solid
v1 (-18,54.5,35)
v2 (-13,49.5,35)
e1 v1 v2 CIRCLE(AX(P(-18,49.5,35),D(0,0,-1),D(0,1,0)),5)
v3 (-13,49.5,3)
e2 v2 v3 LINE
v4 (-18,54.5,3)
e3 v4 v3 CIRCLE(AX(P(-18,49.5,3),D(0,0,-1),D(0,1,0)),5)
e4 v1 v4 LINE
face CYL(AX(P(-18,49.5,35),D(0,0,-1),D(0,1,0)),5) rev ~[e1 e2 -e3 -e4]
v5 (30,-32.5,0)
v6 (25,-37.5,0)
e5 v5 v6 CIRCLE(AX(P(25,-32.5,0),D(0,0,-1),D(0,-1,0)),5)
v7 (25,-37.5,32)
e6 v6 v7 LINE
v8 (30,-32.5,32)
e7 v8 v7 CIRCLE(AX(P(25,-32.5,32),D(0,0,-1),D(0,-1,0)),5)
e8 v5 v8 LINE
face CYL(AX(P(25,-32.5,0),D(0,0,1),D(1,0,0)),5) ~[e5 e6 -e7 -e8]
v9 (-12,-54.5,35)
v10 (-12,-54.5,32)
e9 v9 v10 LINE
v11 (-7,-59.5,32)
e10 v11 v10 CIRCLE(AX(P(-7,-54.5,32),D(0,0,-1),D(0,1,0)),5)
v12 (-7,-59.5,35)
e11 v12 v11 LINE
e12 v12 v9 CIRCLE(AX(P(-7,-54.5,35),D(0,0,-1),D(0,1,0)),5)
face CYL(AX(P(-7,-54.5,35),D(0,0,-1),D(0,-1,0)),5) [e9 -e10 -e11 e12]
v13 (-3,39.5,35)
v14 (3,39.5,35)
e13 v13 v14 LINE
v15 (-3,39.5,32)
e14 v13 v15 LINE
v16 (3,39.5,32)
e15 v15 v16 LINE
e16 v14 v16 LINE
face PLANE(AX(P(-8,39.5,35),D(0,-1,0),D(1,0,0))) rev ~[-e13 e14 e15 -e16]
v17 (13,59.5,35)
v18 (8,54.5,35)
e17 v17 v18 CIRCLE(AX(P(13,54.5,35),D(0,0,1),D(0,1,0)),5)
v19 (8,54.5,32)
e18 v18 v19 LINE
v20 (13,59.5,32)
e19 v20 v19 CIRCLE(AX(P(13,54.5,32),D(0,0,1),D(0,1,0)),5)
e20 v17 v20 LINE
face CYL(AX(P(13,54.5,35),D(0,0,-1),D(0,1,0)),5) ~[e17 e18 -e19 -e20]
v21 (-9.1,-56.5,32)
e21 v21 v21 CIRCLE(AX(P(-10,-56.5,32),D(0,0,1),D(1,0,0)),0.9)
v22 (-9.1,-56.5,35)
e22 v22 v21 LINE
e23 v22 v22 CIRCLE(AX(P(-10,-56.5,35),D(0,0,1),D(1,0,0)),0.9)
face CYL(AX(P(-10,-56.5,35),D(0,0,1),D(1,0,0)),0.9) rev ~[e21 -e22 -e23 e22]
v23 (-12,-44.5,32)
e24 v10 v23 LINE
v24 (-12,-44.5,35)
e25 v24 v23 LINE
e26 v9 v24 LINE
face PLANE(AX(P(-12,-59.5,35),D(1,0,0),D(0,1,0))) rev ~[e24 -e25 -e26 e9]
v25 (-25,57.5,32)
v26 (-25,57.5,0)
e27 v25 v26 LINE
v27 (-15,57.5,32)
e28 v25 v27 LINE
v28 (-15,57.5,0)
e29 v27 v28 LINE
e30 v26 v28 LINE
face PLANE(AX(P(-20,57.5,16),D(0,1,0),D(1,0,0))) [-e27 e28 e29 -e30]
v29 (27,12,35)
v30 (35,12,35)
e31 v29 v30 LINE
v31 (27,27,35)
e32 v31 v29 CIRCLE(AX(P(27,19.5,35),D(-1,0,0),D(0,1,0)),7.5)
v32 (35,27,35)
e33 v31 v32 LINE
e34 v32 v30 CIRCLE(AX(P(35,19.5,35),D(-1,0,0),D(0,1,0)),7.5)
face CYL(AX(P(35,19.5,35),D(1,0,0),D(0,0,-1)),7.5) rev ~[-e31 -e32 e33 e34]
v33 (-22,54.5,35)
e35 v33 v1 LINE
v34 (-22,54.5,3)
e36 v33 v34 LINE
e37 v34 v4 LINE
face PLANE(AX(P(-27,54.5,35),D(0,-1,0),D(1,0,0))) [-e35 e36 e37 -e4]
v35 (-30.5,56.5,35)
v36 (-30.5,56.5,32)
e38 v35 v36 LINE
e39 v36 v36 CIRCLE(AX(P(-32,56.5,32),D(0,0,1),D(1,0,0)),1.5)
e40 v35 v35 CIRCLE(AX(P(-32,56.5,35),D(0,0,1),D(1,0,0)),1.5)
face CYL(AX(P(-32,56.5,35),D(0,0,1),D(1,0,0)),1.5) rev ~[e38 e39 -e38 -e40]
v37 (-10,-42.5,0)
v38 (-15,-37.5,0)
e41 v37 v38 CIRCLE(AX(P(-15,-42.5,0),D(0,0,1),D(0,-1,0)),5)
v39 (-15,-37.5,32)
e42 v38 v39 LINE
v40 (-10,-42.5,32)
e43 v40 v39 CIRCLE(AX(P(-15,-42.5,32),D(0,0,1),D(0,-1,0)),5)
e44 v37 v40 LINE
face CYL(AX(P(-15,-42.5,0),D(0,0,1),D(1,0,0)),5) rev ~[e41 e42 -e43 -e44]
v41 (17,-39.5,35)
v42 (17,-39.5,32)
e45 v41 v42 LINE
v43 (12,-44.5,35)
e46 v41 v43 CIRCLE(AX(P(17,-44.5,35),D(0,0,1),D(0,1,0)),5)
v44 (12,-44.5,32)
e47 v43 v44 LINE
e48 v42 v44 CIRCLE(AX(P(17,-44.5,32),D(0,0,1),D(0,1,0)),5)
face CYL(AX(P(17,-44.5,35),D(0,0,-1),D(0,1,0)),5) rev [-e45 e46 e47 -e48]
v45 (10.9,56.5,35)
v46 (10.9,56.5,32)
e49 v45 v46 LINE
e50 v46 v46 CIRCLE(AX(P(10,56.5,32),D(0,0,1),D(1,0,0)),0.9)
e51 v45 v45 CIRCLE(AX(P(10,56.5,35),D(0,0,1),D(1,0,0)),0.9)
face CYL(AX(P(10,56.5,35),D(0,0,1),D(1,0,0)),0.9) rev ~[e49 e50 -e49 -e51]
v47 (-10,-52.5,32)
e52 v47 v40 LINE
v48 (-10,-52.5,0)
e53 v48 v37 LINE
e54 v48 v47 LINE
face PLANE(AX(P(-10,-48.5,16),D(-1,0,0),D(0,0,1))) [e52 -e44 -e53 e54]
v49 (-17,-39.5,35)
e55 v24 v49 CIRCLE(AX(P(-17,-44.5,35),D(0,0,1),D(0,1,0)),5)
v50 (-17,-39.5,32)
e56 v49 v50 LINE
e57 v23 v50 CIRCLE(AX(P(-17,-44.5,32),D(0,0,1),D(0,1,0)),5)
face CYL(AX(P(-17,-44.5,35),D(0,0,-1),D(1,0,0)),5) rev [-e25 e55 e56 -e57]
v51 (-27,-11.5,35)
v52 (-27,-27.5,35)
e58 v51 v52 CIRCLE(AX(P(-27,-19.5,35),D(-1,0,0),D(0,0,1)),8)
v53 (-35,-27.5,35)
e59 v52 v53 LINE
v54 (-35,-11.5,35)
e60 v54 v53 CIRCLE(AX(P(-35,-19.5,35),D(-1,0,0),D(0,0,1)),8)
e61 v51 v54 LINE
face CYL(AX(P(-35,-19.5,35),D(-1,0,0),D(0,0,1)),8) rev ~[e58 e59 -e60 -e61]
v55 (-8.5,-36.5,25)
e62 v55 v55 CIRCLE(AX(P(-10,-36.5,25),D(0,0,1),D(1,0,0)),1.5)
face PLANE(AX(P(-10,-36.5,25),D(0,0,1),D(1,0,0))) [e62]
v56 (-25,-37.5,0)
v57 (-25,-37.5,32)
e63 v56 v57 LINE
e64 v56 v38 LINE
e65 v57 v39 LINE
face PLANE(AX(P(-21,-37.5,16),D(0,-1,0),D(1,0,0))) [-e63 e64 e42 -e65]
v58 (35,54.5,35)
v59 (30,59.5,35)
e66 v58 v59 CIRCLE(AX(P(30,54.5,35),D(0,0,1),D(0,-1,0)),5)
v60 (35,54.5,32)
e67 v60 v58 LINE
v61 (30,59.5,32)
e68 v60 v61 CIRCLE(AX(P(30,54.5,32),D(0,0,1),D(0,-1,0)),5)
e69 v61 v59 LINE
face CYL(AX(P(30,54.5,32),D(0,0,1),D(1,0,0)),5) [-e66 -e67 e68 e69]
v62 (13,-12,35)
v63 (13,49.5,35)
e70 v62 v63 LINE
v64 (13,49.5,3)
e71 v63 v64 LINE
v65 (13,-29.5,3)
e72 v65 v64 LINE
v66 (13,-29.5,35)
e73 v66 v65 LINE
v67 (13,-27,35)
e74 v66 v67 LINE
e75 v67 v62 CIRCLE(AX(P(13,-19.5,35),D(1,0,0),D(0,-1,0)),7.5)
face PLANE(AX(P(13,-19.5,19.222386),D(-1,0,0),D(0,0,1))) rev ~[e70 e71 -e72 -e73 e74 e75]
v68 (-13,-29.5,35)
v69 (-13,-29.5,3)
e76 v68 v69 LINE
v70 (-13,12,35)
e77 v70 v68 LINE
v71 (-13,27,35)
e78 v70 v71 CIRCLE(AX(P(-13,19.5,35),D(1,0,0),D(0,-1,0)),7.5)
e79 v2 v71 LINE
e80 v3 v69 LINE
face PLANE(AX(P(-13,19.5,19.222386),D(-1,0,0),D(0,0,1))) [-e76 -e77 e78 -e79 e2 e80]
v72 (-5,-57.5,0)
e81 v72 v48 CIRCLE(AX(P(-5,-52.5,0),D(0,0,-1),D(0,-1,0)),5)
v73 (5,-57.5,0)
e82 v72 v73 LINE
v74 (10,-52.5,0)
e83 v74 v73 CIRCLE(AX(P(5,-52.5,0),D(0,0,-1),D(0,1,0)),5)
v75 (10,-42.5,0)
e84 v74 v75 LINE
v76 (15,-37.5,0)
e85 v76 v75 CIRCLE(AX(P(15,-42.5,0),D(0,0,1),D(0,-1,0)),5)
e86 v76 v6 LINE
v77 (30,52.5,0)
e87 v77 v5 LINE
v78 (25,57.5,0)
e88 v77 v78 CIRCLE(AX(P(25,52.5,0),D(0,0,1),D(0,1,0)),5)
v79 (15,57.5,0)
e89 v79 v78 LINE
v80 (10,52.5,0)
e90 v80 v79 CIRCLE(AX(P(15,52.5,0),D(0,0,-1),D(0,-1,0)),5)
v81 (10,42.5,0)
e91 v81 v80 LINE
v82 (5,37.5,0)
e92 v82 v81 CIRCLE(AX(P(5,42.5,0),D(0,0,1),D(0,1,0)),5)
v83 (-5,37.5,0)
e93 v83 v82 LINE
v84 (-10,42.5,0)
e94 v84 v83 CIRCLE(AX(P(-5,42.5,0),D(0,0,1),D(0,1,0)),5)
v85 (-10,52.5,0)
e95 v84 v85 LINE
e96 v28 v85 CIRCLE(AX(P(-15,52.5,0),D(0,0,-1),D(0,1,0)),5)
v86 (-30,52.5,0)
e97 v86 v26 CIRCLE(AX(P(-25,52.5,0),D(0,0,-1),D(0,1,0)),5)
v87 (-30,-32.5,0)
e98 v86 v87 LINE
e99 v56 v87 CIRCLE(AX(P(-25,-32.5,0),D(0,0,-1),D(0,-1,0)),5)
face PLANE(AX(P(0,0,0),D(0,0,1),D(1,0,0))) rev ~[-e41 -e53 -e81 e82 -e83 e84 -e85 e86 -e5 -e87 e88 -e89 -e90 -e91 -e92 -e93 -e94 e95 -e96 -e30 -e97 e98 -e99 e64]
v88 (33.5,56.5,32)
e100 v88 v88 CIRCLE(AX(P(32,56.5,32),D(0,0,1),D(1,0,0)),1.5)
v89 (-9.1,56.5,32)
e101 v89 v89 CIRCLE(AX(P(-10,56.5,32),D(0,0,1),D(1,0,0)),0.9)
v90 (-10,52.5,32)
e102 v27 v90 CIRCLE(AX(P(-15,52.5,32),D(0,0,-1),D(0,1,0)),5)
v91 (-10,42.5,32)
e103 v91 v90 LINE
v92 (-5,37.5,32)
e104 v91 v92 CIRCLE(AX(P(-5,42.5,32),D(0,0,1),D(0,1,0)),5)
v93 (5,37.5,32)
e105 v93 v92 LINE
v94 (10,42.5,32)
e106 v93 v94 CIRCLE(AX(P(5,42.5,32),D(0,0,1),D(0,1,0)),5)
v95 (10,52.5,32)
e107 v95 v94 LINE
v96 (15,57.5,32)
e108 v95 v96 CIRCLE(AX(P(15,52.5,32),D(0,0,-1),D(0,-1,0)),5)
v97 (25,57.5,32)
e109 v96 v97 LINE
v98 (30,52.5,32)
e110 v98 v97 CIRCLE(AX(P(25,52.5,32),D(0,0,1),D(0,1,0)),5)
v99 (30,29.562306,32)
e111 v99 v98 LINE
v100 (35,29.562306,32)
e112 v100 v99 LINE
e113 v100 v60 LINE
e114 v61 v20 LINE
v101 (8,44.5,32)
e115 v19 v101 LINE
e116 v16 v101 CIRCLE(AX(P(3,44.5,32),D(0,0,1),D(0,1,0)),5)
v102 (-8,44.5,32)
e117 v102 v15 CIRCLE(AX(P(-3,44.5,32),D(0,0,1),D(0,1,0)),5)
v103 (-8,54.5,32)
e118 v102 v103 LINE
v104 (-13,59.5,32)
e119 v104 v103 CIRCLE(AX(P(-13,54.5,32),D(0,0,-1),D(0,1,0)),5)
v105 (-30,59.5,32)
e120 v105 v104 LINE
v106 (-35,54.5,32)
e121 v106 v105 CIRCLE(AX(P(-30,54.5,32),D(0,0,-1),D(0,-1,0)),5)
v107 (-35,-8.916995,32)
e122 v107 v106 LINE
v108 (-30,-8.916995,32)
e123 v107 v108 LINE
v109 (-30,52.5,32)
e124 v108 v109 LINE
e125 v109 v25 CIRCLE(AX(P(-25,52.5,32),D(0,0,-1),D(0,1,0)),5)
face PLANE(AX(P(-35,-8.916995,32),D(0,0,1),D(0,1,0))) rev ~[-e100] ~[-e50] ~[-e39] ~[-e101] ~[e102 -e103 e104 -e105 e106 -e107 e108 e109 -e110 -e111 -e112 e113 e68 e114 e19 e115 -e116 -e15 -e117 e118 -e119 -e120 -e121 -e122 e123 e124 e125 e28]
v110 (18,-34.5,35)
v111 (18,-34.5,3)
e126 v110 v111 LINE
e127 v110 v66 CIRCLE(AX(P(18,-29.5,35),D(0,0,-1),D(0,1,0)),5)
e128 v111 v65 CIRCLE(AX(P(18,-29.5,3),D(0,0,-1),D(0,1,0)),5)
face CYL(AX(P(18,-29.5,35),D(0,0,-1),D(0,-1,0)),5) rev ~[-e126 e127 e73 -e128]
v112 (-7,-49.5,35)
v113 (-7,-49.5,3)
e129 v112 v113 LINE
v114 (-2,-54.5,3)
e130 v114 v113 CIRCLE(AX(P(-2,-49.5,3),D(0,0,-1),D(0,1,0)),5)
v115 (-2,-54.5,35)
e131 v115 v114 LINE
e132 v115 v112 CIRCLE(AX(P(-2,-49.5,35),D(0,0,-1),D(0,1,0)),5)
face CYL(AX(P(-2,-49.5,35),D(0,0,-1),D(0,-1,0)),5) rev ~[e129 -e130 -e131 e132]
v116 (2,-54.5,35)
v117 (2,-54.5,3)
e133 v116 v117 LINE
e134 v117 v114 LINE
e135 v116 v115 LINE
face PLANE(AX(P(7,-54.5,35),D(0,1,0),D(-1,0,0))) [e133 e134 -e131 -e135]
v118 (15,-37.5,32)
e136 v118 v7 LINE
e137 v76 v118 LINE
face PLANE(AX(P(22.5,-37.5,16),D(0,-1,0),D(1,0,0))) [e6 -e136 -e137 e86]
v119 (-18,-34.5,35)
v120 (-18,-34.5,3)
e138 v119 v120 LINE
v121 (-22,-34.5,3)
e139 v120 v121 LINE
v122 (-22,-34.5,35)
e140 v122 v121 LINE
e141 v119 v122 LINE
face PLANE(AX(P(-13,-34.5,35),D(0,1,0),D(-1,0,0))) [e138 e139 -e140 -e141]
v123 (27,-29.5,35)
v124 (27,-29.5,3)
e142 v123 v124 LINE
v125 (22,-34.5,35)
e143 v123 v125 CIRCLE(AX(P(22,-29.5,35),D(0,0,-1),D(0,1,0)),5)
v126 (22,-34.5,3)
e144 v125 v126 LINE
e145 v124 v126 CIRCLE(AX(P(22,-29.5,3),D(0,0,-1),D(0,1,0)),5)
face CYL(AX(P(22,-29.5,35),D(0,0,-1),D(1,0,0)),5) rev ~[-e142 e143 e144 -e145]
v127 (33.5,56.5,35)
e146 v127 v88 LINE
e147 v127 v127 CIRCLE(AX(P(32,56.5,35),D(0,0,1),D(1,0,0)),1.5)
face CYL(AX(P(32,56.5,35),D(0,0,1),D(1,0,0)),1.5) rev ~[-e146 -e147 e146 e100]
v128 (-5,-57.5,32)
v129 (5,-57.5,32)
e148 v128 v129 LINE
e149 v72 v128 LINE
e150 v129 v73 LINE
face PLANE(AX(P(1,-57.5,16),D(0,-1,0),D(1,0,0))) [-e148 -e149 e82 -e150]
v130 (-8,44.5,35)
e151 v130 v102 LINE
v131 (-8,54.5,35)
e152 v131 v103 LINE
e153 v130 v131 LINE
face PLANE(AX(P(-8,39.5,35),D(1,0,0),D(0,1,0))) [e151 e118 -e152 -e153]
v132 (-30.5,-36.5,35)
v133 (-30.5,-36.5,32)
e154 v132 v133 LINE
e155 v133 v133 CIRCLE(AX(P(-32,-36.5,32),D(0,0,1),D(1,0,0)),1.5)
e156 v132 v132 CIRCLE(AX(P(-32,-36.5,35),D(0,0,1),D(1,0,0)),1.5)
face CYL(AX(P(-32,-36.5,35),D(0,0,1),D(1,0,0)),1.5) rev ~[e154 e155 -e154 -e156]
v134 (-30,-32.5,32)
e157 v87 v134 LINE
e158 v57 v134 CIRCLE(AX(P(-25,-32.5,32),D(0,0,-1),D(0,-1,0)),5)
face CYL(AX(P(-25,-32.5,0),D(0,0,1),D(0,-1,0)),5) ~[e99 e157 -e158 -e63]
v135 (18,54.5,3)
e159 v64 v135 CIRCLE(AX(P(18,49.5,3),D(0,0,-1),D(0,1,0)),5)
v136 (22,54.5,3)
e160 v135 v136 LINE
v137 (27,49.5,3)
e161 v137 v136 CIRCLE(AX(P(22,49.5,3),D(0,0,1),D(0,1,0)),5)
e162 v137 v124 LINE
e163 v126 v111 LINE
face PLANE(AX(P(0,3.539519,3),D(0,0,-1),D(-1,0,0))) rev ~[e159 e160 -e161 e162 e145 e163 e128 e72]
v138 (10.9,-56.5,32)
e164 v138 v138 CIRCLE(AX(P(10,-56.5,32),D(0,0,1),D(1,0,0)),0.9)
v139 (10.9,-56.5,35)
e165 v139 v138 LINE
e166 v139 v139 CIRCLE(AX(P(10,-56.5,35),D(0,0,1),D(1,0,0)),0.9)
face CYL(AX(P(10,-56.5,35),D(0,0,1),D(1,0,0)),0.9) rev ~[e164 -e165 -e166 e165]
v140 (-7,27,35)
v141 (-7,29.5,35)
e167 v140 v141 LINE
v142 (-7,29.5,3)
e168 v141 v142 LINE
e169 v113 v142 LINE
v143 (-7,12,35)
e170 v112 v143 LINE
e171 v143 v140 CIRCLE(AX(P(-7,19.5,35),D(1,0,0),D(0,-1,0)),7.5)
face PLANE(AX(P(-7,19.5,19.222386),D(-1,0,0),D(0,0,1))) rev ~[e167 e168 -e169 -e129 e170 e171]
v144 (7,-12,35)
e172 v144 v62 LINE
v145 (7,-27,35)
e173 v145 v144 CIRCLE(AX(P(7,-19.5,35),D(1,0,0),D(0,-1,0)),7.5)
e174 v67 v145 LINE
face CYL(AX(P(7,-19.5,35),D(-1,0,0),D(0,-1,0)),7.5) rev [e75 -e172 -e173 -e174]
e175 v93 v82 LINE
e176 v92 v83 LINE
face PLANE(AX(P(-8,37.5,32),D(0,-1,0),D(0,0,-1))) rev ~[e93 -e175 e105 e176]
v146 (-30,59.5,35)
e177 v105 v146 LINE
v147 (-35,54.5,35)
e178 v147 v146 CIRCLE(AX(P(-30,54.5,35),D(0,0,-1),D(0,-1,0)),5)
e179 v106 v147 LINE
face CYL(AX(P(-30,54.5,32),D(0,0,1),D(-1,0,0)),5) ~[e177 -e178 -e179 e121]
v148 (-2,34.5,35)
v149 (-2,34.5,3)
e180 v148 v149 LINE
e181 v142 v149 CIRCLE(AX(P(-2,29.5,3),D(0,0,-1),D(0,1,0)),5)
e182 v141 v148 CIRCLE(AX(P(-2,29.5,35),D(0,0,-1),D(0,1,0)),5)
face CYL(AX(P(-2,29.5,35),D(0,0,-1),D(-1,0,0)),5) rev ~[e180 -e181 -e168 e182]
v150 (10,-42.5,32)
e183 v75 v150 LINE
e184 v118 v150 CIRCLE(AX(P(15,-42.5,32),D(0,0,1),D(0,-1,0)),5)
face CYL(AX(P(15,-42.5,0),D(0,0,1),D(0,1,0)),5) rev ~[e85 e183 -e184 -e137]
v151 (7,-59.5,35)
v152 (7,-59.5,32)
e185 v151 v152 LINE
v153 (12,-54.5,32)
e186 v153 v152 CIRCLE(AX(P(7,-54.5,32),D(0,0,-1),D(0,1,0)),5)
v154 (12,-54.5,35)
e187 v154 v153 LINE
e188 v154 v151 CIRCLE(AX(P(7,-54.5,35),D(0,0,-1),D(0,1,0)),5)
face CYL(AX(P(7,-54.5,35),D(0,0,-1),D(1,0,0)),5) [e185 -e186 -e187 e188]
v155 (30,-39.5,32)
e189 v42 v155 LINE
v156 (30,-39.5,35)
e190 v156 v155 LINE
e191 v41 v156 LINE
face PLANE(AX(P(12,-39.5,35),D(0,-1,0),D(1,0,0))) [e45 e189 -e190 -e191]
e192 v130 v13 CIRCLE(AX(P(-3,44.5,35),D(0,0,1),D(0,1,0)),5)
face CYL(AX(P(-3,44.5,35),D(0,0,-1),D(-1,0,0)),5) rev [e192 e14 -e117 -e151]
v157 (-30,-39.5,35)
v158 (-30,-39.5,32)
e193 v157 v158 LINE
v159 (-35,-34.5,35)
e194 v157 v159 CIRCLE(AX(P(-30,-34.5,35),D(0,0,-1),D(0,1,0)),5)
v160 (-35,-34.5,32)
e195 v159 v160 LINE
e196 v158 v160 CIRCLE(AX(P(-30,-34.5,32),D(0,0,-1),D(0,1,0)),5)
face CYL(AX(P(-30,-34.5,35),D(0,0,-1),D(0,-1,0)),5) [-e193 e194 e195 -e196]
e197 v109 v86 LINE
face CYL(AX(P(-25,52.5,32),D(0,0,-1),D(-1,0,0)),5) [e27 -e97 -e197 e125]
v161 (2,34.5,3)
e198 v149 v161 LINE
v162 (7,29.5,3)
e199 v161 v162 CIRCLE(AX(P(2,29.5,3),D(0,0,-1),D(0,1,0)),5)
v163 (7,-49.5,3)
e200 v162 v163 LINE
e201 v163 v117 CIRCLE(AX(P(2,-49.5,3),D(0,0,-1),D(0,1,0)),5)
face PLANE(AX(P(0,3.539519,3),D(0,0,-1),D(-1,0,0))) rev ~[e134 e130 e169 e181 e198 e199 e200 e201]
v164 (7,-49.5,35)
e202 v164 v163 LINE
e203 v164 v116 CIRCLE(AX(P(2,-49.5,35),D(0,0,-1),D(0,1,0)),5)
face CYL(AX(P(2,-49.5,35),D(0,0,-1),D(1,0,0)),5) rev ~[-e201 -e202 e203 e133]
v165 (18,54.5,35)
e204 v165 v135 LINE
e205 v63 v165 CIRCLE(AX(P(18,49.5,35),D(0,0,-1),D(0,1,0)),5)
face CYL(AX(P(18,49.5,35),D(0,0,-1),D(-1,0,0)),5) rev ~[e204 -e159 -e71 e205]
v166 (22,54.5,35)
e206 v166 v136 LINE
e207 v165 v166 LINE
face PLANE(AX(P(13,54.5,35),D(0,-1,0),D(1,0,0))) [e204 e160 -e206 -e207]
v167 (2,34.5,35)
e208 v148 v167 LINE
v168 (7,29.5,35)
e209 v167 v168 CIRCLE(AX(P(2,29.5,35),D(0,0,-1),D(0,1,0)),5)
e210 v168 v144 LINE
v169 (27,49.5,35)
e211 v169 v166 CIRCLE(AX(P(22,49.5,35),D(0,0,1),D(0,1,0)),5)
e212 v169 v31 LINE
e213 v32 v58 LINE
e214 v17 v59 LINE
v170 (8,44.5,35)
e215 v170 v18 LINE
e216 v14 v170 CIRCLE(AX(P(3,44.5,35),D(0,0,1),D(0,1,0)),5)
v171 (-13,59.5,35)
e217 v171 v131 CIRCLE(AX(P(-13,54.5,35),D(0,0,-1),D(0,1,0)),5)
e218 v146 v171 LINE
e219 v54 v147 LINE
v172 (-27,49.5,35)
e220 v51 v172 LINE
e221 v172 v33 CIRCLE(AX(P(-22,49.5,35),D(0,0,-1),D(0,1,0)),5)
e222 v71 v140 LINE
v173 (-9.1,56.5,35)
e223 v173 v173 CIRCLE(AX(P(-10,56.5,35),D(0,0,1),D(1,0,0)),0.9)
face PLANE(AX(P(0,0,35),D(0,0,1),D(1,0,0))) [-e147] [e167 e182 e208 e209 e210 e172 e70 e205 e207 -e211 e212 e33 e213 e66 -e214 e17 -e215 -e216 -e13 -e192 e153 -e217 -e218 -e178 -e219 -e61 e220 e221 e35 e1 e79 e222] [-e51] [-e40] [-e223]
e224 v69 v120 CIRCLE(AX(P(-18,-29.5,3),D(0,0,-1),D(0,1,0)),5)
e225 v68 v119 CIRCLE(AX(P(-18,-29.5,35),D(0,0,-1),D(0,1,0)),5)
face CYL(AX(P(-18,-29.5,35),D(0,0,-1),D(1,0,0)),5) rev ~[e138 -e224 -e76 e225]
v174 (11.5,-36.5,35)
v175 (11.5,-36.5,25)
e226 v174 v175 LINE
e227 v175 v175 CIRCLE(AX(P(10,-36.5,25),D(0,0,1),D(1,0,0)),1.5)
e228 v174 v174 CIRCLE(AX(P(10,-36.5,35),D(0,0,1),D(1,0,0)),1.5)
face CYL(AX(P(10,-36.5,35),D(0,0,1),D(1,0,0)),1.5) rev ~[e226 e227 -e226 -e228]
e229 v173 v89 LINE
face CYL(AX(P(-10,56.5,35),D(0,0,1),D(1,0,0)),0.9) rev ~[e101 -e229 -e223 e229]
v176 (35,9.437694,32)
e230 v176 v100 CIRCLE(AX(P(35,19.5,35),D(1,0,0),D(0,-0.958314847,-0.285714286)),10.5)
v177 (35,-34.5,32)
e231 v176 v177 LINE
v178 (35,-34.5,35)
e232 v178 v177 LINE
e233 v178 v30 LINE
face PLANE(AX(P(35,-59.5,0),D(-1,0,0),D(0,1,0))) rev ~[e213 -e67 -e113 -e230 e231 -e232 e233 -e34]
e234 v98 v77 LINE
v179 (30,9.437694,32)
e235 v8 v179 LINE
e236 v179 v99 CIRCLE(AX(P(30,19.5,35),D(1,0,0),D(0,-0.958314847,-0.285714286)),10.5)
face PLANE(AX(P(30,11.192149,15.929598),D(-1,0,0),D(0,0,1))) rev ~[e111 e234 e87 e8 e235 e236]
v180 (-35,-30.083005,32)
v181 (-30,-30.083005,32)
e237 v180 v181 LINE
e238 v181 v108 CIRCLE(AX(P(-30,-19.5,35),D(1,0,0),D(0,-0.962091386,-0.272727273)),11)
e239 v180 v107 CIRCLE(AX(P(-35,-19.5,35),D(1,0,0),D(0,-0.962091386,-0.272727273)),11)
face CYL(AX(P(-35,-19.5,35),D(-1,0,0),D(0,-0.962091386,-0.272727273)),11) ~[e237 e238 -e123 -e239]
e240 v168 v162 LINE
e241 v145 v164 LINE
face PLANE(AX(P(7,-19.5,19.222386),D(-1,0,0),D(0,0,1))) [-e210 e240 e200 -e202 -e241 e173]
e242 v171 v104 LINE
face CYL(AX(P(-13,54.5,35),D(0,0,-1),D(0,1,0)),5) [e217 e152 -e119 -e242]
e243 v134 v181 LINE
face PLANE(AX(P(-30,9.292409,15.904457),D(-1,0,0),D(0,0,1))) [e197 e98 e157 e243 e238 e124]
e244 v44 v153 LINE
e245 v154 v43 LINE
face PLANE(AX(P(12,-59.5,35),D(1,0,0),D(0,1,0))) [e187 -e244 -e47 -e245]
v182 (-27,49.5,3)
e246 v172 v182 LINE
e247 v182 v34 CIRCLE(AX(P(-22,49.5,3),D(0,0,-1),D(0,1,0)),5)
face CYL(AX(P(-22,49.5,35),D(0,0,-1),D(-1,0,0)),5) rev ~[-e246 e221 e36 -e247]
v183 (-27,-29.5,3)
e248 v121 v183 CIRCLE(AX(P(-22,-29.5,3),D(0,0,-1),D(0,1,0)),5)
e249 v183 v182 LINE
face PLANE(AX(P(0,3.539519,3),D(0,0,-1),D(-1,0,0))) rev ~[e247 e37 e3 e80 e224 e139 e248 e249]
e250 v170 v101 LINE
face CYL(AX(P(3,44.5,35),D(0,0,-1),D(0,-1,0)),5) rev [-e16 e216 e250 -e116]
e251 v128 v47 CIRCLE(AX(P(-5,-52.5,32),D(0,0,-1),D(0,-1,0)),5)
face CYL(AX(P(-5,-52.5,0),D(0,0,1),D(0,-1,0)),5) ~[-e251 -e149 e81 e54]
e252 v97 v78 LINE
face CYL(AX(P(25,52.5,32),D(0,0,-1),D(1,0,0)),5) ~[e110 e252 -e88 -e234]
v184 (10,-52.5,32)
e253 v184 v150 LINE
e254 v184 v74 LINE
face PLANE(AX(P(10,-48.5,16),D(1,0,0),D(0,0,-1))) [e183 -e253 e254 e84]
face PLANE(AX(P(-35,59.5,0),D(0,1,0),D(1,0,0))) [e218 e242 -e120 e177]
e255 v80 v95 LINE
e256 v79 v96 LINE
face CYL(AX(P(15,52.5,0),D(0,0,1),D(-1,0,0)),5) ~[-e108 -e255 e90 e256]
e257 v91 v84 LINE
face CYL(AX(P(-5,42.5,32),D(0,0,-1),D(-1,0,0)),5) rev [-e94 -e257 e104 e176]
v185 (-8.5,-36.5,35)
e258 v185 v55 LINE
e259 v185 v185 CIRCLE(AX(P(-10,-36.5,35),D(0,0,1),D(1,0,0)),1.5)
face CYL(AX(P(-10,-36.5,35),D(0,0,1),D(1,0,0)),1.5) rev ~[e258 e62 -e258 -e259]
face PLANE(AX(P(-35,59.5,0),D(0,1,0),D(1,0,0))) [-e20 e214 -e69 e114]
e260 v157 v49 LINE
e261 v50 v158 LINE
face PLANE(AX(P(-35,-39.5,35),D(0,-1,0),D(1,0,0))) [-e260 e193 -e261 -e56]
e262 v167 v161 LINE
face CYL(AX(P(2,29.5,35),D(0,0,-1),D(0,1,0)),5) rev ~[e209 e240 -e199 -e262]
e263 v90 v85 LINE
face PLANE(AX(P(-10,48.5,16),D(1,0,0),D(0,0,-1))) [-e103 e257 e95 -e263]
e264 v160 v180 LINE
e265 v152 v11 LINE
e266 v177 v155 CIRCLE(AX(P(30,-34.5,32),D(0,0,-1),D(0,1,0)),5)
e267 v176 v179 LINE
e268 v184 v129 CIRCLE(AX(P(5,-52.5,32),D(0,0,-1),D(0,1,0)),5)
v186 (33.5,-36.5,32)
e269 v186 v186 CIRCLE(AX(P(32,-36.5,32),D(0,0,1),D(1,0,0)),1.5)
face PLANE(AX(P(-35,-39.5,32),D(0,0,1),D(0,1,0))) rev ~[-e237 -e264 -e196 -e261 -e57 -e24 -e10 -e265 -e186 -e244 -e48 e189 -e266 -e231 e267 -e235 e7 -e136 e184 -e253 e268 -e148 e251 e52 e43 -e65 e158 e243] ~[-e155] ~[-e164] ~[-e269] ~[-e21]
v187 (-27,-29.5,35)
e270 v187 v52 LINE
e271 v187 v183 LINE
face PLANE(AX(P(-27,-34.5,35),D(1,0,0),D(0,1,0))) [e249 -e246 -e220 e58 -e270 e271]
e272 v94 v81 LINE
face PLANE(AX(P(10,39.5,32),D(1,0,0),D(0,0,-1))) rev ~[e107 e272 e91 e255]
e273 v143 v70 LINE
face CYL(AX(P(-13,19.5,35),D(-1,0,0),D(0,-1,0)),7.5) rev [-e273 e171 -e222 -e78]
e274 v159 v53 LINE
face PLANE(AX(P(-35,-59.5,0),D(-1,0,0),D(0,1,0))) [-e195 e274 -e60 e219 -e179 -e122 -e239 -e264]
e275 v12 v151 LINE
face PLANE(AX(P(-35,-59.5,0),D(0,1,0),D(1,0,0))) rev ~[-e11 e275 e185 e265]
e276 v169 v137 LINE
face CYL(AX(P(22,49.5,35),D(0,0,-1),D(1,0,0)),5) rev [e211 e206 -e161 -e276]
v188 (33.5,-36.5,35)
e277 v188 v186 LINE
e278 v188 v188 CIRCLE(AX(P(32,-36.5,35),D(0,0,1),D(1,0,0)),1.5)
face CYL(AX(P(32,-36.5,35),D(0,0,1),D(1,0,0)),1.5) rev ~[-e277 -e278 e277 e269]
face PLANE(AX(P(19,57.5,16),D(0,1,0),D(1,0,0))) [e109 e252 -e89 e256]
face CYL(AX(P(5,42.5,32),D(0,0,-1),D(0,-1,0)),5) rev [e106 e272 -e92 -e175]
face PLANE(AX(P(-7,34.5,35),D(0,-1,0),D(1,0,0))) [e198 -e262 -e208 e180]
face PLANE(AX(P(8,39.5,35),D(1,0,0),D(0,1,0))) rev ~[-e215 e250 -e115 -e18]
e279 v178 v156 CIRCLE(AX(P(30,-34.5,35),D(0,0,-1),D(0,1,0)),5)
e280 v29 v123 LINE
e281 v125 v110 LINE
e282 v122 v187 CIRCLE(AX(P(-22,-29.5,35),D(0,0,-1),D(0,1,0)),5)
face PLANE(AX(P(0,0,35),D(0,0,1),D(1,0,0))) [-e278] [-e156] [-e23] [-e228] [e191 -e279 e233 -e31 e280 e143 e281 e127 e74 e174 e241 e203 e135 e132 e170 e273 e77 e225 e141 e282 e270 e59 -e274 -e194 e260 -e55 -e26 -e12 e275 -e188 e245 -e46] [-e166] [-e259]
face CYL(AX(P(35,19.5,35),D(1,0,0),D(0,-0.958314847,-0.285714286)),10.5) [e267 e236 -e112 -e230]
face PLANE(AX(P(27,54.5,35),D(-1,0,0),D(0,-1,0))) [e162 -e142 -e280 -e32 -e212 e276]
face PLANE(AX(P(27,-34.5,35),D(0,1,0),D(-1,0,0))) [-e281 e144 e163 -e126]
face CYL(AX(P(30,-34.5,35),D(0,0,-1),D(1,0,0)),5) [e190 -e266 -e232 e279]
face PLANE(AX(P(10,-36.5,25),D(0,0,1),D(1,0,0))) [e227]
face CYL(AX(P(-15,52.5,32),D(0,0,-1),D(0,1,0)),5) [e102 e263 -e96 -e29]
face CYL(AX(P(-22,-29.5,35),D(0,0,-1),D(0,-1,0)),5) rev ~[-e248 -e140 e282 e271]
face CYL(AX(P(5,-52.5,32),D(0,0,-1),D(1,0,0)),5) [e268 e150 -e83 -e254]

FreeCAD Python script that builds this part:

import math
import FreeCAD as App
import Part
import Sketcher
from FreeCAD import Vector
Q = App.Units.Quantity


def edges_at(feature, points):
    """Names of the edges that pass closest to the given points."""
    edges = feature.Shape.Edges
    near = lambda p: min(range(len(edges)), key=lambda i: edges[i].distToShape(Part.Vertex(*p))[0])
    return sorted({f"Edge{near(p) + 1}" for p in points})


def add_polygon(sketch, points):
    """Adds a closed chain of lines whose ends are joined by coincident constraints."""
    first, n = sketch.GeometryCount, len(points)
    for a, b in zip(points, points[1:] + points[:1]):
        sketch.addGeometry(Part.LineSegment(App.Vector(*a, 0), App.Vector(*b, 0)), False)
    for i in range(n):
        sketch.addConstraint(Sketcher.Constraint("Coincident", first + i, 2, first + (i + 1) % n, 1))

doc = App.newDocument("Part")
body = doc.addObject("PartDesign::Body", "Body")

# Sketch on XY plane
sketch1 = body.newObject("Sketcher::SketchObject", "Sketch")
sketch1.AttachmentSupport = (doc.getObject("XY_Plane"), [""])
sketch1.MapMode = "FlatFace"
add_polygon(sketch1, [(-35, 59.5), (-35, -59.5), (35, -59.5), (35, 59.5)])  # lines 0-3
sketch1.addConstraint([
    Sketcher.Constraint("Vertical", 0),
    Sketcher.Constraint("Horizontal", 1),
    Sketcher.Constraint("Vertical", 2),
    Sketcher.Constraint("Horizontal", 3),
    Sketcher.Constraint("Symmetric", 0, 2, 2, 2, -1, 1),
    Sketcher.Constraint("DistanceX", 1, 1, 1, 2, Q("70 mm")),
    Sketcher.Constraint("DistanceY", 0, 2, 0, 1, Q("119 mm")),
])
pad1 = body.newObject("PartDesign::Pad", "Pad")
pad1.Profile = sketch1
pad1.Length = 35

# Sketch on YZ plane
sketch2 = body.newObject("Sketcher::SketchObject", "Sketch001")
sketch2.AttachmentSupport = (doc.getObject("YZ_Plane"), [""])
sketch2.MapMode = "FlatFace"
sketch2.AttachmentOffset = App.Placement(Vector(0, 0, -35), App.Rotation())
sketch2.addGeometry(Part.Circle(Vector(-19.5, 35, 0), Vector(0, 0, 1), 8), False)
sketch2.addConstraint([
    Sketcher.Constraint("Diameter", 0, Q("16 mm")),
    Sketcher.Constraint("DistanceY", -1, 1, 0, 3, Q("35 mm")),
    Sketcher.Constraint("DistanceX", 0, 3, -1, 1, Q("19.5 mm")),
])
pocket1 = body.newObject("PartDesign::Pocket", "Pocket")
pocket1.Profile = sketch2
pocket1.Length = 8
pocket1.Reversed = True

# Sketch on XY plane
sketch3 = body.newObject("Sketcher::SketchObject", "Sketch002")
sketch3.AttachmentSupport = (doc.getObject("XY_Plane"), [""])
sketch3.MapMode = "FlatFace"
sketch3.AttachmentOffset = App.Placement(Vector(0, 0, 35), App.Rotation())
add_polygon(sketch3, [(-13, 54.5), (-27, 54.5), (-27, -34.5), (-13, -34.5), (-13, 12), (-7, 12), (-7, -54.5), (7, -54.5), (7, -27), (13, -27), (13, -34.5), (27, -34.5), (27, 54.5), (13, 54.5), (13, -12), (7, -12), (7, 34.5), (-7, 34.5), (-7, 27), (-13, 27)])  # lines 0-19
sketch3.addConstraint([
    Sketcher.Constraint("Horizontal", 0),
    Sketcher.Constraint("Vertical", 1),
    Sketcher.Constraint("Horizontal", 2),
    Sketcher.Constraint("Vertical", 3),
    Sketcher.Constraint("Horizontal", 4),
    Sketcher.Constraint("Vertical", 5),
    Sketcher.Constraint("Horizontal", 6),
    Sketcher.Constraint("Vertical", 7),
    Sketcher.Constraint("Horizontal", 8),
    Sketcher.Constraint("Vertical", 9),
    Sketcher.Constraint("Horizontal", 10),
    Sketcher.Constraint("Vertical", 11),
    Sketcher.Constraint("Horizontal", 12),
    Sketcher.Constraint("Vertical", 13),
    Sketcher.Constraint("Horizontal", 14),
    Sketcher.Constraint("Vertical", 15),
    Sketcher.Constraint("Horizontal", 16),
    Sketcher.Constraint("Vertical", 17),
    Sketcher.Constraint("Horizontal", 18),
    Sketcher.Constraint("Vertical", 19),
    Sketcher.Constraint("Symmetric", 3, 2, 13, 2, -1, 1),
    Sketcher.Constraint("Symmetric", 7, 2, 17, 2, -1, 1),
    Sketcher.Constraint("Symmetric", 2, 2, 9, 2, -2),
    Sketcher.Constraint("Symmetric", 0, 2, 11, 2, -2),
    Sketcher.Constraint("Vertical", 7, 2, 14, 2),
    Sketcher.Constraint("Vertical", 5, 2, 16, 2),
    Sketcher.Constraint("Vertical", 3, 2, 18, 2),
    Sketcher.Constraint("Equal", 2, 6),
    Sketcher.Constraint("Equal", 5, 13),
    Sketcher.Constraint("Equal", 3, 15),
    Sketcher.Constraint("DistanceX", 0, 2, 0, 1, Q("14 mm")),
    Sketcher.Constraint("DistanceX", 4, 1, 4, 2, Q("6 mm")),
    Sketcher.Constraint("DistanceY", 1, 2, 1, 1, Q("89 mm")),
    Sketcher.Constraint("DistanceY", 3, 1, 3, 2, Q("46.5 mm")),
    Sketcher.Constraint("DistanceY", 5, 2, 5, 1, Q("66.5 mm")),
    Sketcher.Constraint("DistanceY", 7, 1, 7, 2, Q("27.5 mm")),
])
pocket2 = body.newObject("PartDesign::Pocket", "Pocket001")
pocket2.Profile = sketch3
pocket2.Length = 32

# Sketch on YZ plane
sketch4 = body.newObject("Sketcher::SketchObject", "Sketch003")
sketch4.AttachmentSupport = (doc.getObject("YZ_Plane"), [""])
sketch4.MapMode = "FlatFace"
sketch4.AttachmentOffset = App.Placement(Vector(0, 0, 35), App.Rotation())
sketch4.addGeometry(Part.Circle(Vector(19.5, 35, 0), Vector(0, 0, 1), 7.5), False)
sketch4.addConstraint([
    Sketcher.Constraint("Diameter", 0, Q("15 mm")),
    Sketcher.Constraint("DistanceY", -1, 1, 0, 3, Q("35 mm")),
    Sketcher.Constraint("DistanceX", -1, 1, 0, 3, Q("19.5 mm")),
])
pocket3 = body.newObject("PartDesign::Pocket", "Pocket002")
pocket3.Profile = sketch4
pocket3.Length = 8

# Sketch on XY plane
sketch5 = body.newObject("Sketcher::SketchObject", "Sketch004")
sketch5.AttachmentSupport = (doc.getObject("XY_Plane"), [""])
sketch5.MapMode = "FlatFace"
sketch5.AttachmentOffset = App.Placement(Vector(0, 0, 35), App.Rotation())
add_polygon(sketch5, [(-8, 59.5), (-8, 39.5), (8, 39.5), (8, 59.5)])  # lines 0-3
add_polygon(sketch5, [(-35, -39.5), (-35, -59.5), (-12, -59.5), (-12, -39.5)])  # lines 4-7
add_polygon(sketch5, [(12, -39.5), (12, -59.5), (35, -59.5), (35, -39.5)])  # lines 8-11
sketch5.addConstraint([
    Sketcher.Constraint("Vertical", 0),
    Sketcher.Constraint("Horizontal", 1),
    Sketcher.Constraint("Vertical", 2),
    Sketcher.Constraint("Horizontal", 3),
    Sketcher.Constraint("Vertical", 4),
    Sketcher.Constraint("Horizontal", 5),
    Sketcher.Constraint("Vertical", 6),
    Sketcher.Constraint("Horizontal", 7),
    Sketcher.Constraint("Vertical", 8),
    Sketcher.Constraint("Horizontal", 9),
    Sketcher.Constraint("Vertical", 10),
    Sketcher.Constraint("Horizontal", 11),
    Sketcher.Constraint("Symmetric", 5, 2, 8, 2, -2),
    Sketcher.Constraint("Symmetric", 7, 2, 10, 2, -2),
    Sketcher.Constraint("Equal", 2, 4),
    Sketcher.Constraint("DistanceX", 1, 1, 1, 2, Q("16 mm")),
    Sketcher.Constraint("DistanceX", 5, 1, 5, 2, Q("23 mm")),
    Sketcher.Constraint("DistanceY", 0, 2, 0, 1, Q("20 mm")),
    Sketcher.Constraint("DistanceX", 0, 2, -1, 1, Q("8 mm")),
    Sketcher.Constraint("DistanceX", 4, 2, -1, 1, Q("35 mm")),
    Sketcher.Constraint("DistanceY", 4, 2, 0, 2, Q("99 mm")),
    Sketcher.Constraint("DistanceY", -1, 1, 0, 2, Q("39.5 mm")),
])
pocket4 = body.newObject("PartDesign::Pocket", "Pocket003")
pocket4.Profile = sketch5
pocket4.Type = "ThroughAll"

# Sketch on YZ plane
sketch6 = body.newObject("Sketcher::SketchObject", "Sketch005")
sketch6.AttachmentSupport = (doc.getObject("YZ_Plane"), [""])
sketch6.MapMode = "FlatFace"
sketch6.AttachmentOffset = App.Placement(Vector(0, 0, -35), App.Rotation())
sketch6.addGeometry([
    Part.LineSegment(Vector(59.5, 32, 0), Vector(59.5, 0, 0)),  # 0
    Part.LineSegment(Vector(59.5, 0, 0), Vector(-39.5, 0, 0)),  # 1
    Part.LineSegment(Vector(-39.5, 0, 0), Vector(-39.5, 32, 0)),  # 2
    Part.LineSegment(Vector(-39.5, 32, 0), Vector(-30.083005, 32, 0)),  # 3
    Part.ArcOfCircle(Part.Circle(Vector(-19.5, 35, 0), Vector(0, 0, 1), 11), math.radians(-164.17338), math.radians(-15.82662)),  # 4
    Part.LineSegment(Vector(-8.916995, 32, 0), Vector(59.5, 32, 0)),  # 5
], False)
sketch6.addConstraint([
    Sketcher.Constraint("Coincident", 0, 2, 1, 1),
    Sketcher.Constraint("Coincident", 1, 2, 2, 1),
    Sketcher.Constraint("Coincident", 2, 2, 3, 1),
    Sketcher.Constraint("Coincident", 3, 2, 4, 1),
    Sketcher.Constraint("Coincident", 4, 2, 5, 1),
    Sketcher.Constraint("Coincident", 5, 2, 0, 1),
    Sketcher.Constraint("Vertical", 0),
    Sketcher.Constraint("Horizontal", 1),
    Sketcher.Constraint("Vertical", 2),
    Sketcher.Constraint("Horizontal", 3),
    Sketcher.Constraint("Horizontal", 5),
    Sketcher.Constraint("PointOnObject", 0, 2, -1),
    Sketcher.Constraint("Horizontal", 3, 2, 4, 2),
    Sketcher.Constraint("Radius", 4, Q("11 mm")),
    Sketcher.Constraint("DistanceX", 1, 2, 1, 1, Q("99 mm")),
    Sketcher.Constraint("DistanceY", 0, 2, 0, 1, Q("32 mm")),
    Sketcher.Constraint("DistanceY", -1, 1, 4, 3, Q("35 mm")),
    Sketcher.Constraint("DistanceX", 4, 3, 0, 2, Q("79 mm")),
    Sketcher.Constraint("DistanceX", 4, 3, -1, 1, Q("19.5 mm")),
])
pocket5 = body.newObject("PartDesign::Pocket", "Pocket004")
pocket5.Profile = sketch6
pocket5.Length = 5
pocket5.Reversed = True

# Sketch on XZ plane
sketch7 = body.newObject("Sketcher::SketchObject", "Sketch006")
sketch7.AttachmentSupport = (doc.getObject("XZ_Plane"), [""])
sketch7.MapMode = "FlatFace"
sketch7.AttachmentOffset = App.Placement(Vector(0, 0, 39.5), App.Rotation())
add_polygon(sketch7, [(-30, 32), (-30, 0), (-12, 0), (-12, 32)])  # lines 0-3
sketch7.addConstraint([
    Sketcher.Constraint("Vertical", 0),
    Sketcher.Constraint("Horizontal", 1),
    Sketcher.Constraint("Vertical", 2),
    Sketcher.Constraint("Horizontal", 3),
    Sketcher.Constraint("PointOnObject", 0, 2, -1),
    Sketcher.Constraint("DistanceX", 1, 1, 1, 2, Q("18 mm")),
    Sketcher.Constraint("DistanceY", 0, 2, 0, 1, Q("32 mm")),
    Sketcher.Constraint("DistanceX", 0, 2, -1, 1, Q("30 mm")),
])
pocket6 = body.newObject("PartDesign::Pocket", "Pocket005")
pocket6.Profile = sketch7
pocket6.Length = 2

# Sketch on YZ plane
sketch8 = body.newObject("Sketcher::SketchObject", "Sketch007")
sketch8.AttachmentSupport = (doc.getObject("YZ_Plane"), [""])
sketch8.MapMode = "FlatFace"
sketch8.AttachmentOffset = App.Placement(Vector(0, 0, -12), App.Rotation())
add_polygon(sketch8, [(-37.5, 0), (-59.5, 0), (-59.5, 32), (-37.5, 32)])  # lines 0-3
sketch8.addConstraint([
    Sketcher.Constraint("Horizontal", 0),
    Sketcher.Constraint("Vertical", 1),
    Sketcher.Constraint("Horizontal", 2),
    Sketcher.Constraint("Vertical", 3),
    Sketcher.Constraint("PointOnObject", 0, 2, -1),
    Sketcher.Constraint("DistanceX", 0, 2, 0, 1, Q("22 mm")),
    Sketcher.Constraint("DistanceY", 1, 1, 1, 2, Q("32 mm")),
    Sketcher.Constraint("DistanceX", 0, 2, -1, 1, Q("59.5 mm")),
])
pocket7 = body.newObject("PartDesign::Pocket", "Pocket006")
pocket7.Profile = sketch8
pocket7.Length = 2
pocket7.Reversed = True

# Sketch on XZ plane
sketch9 = body.newObject("Sketcher::SketchObject", "Sketch008")
sketch9.AttachmentSupport = (doc.getObject("XZ_Plane"), [""])
sketch9.MapMode = "FlatFace"
sketch9.AttachmentOffset = App.Placement(Vector(0, 0, 59.5), App.Rotation())
add_polygon(sketch9, [(-10, 32), (-10, 0), (12, 0), (12, 32)])  # lines 0-3
sketch9.addConstraint([
    Sketcher.Constraint("Vertical", 0),
    Sketcher.Constraint("Horizontal", 1),
    Sketcher.Constraint("Vertical", 2),
    Sketcher.Constraint("Horizontal", 3),
    Sketcher.Constraint("PointOnObject", 0, 2, -1),
    Sketcher.Constraint("DistanceX", 1, 1, 1, 2, Q("22 mm")),
    Sketcher.Constraint("DistanceY", 0, 2, 0, 1, Q("32 mm")),
    Sketcher.Constraint("DistanceX", 0, 2, -1, 1, Q("10 mm")),
])
pocket8 = body.newObject("PartDesign::Pocket", "Pocket007")
pocket8.Profile = sketch9
pocket8.Length = 2

# Sketch on YZ plane
sketch10 = body.newObject("Sketcher::SketchObject", "Sketch009")
sketch10.AttachmentSupport = (doc.getObject("YZ_Plane"), [""])
sketch10.MapMode = "FlatFace"
sketch10.AttachmentOffset = App.Placement(Vector(0, 0, 12), App.Rotation())
add_polygon(sketch10, [(-39.5, 32), (-57.5, 32), (-57.5, 0), (-39.5, 0)])  # lines 0-3
sketch10.addConstraint([
    Sketcher.Constraint("Horizontal", 0),
    Sketcher.Constraint("Vertical", 1),
    Sketcher.Constraint("Horizontal", 2),
    Sketcher.Constraint("Vertical", 3),
    Sketcher.Constraint("PointOnObject", 1, 2, -1),
    Sketcher.Constraint("DistanceX", 0, 2, 0, 1, Q("18 mm")),
    Sketcher.Constraint("DistanceY", 1, 2, 1, 1, Q("32 mm")),
    Sketcher.Constraint("DistanceX", 0, 2, -1, 1, Q("57.5 mm")),
])
pocket9 = body.newObject("PartDesign::Pocket", "Pocket008")
pocket9.Profile = sketch10
pocket9.Length = 2

# Sketch on XZ plane
sketch11 = body.newObject("Sketcher::SketchObject", "Sketch010")
sketch11.AttachmentSupport = (doc.getObject("XZ_Plane"), [""])
sketch11.MapMode = "FlatFace"
sketch11.AttachmentOffset = App.Placement(Vector(0, 0, 39.5), App.Rotation())
add_polygon(sketch11, [(10, 32), (10, 0), (35, 0), (35, 32)])  # lines 0-3
sketch11.addConstraint([
    Sketcher.Constraint("Vertical", 0),
    Sketcher.Constraint("Horizontal", 1),
    Sketcher.Constraint("Vertical", 2),
    Sketcher.Constraint("Horizontal", 3),
    Sketcher.Constraint("PointOnObject", 0, 2, -1),
    Sketcher.Constraint("DistanceX", 1, 1, 1, 2, Q("25 mm")),
    Sketcher.Constraint("DistanceY", 0, 2, 0, 1, Q("32 mm")),
    Sketcher.Constraint("DistanceX", -1, 1, 0, 2, Q("10 mm")),
])
pocket10 = body.newObject("PartDesign::Pocket", "Pocket009")
pocket10.Profile = sketch11
pocket10.Length = 2

# Sketch on YZ plane
sketch12 = body.newObject("Sketcher::SketchObject", "Sketch011")
sketch12.AttachmentSupport = (doc.getObject("YZ_Plane"), [""])
sketch12.MapMode = "FlatFace"
sketch12.AttachmentOffset = App.Placement(Vector(0, 0, 35), App.Rotation())
sketch12.addGeometry([
    Part.LineSegment(Vector(59.5, 0, 0), Vector(59.5, 32, 0)),  # 0
    Part.LineSegment(Vector(59.5, 32, 0), Vector(29.562306, 32, 0)),  # 1
    Part.ArcOfCircle(Part.Circle(Vector(19.5, 35, 0), Vector(0, 0, 1), 10.5), math.radians(-163.39845), math.radians(-16.60155)),  # 2
    Part.LineSegment(Vector(9.437694, 32, 0), Vector(-37.5, 32, 0)),  # 3
    Part.LineSegment(Vector(-37.5, 32, 0), Vector(-37.5, 0, 0)),  # 4
    Part.LineSegment(Vector(-37.5, 0, 0), Vector(59.5, 0, 0)),  # 5
], False)
sketch12.addConstraint([
    Sketcher.Constraint("Coincident", 0, 2, 1, 1),
    Sketcher.Constraint("Coincident", 1, 2, 2, 2),
    Sketcher.Constraint("Coincident", 2, 1, 3, 1),
    Sketcher.Constraint("Coincident", 3, 2, 4, 1),
    Sketcher.Constraint("Coincident", 4, 2, 5, 1),
    Sketcher.Constraint("Coincident", 5, 2, 0, 1),
    Sketcher.Constraint("Vertical", 0),
    Sketcher.Constraint("Horizontal", 1),
    Sketcher.Constraint("Horizontal", 3),
    Sketcher.Constraint("Vertical", 4),
    Sketcher.Constraint("Horizontal", 5),
    Sketcher.Constraint("PointOnObject", 4, 2, -1),
    Sketcher.Constraint("Horizontal", 1, 2, 2, 1),
    Sketcher.Constraint("Radius", 2, Q("10.5 mm")),
    Sketcher.Constraint("DistanceX", 5, 1, 5, 2, Q("97 mm")),
    Sketcher.Constraint("DistanceY", 0, 1, 0, 2, Q("32 mm")),
    Sketcher.Constraint("DistanceY", -1, 1, 2, 3, Q("35 mm")),
    Sketcher.Constraint("DistanceX", 2, 3, 0, 2, Q("40 mm")),
    Sketcher.Constraint("DistanceX", -1, 1, 2, 3, Q("19.5 mm")),
])
pocket11 = body.newObject("PartDesign::Pocket", "Pocket010")
pocket11.Profile = sketch12
pocket11.Length = 5

# Sketch on XZ plane
sketch13 = body.newObject("Sketcher::SketchObject", "Sketch012")
sketch13.AttachmentSupport = (doc.getObject("XZ_Plane"), [""])
sketch13.MapMode = "FlatFace"
sketch13.AttachmentOffset = App.Placement(Vector(0, 0, -59.5), App.Rotation())
add_polygon(sketch13, [(8, 0), (8, 32), (30, 32), (30, 0)])  # lines 0-3
sketch13.addConstraint([
    Sketcher.Constraint("Vertical", 0),
    Sketcher.Constraint("Horizontal", 1),
    Sketcher.Constraint("Vertical", 2),
    Sketcher.Constraint("Horizontal", 3),
    Sketcher.Constraint("PointOnObject", 2, 2, -1),
    Sketcher.Constraint("DistanceX", 1, 1, 1, 2, Q("22 mm")),
    Sketcher.Constraint("DistanceY", 0, 1, 0, 2, Q("32 mm")),
    Sketcher.Constraint("DistanceX", -1, 1, 0, 2, Q("8 mm")),
])
pocket12 = body.newObject("PartDesign::Pocket", "Pocket011")
pocket12.Profile = sketch13
pocket12.Length = 2
pocket12.Reversed = True

# Sketch on YZ plane
sketch14 = body.newObject("Sketcher::SketchObject", "Sketch013")
sketch14.AttachmentSupport = (doc.getObject("YZ_Plane"), [""])
sketch14.MapMode = "FlatFace"
sketch14.AttachmentOffset = App.Placement(Vector(0, 0, 8), App.Rotation())
add_polygon(sketch14, [(57.5, 0), (39.5, 0), (39.5, 32), (57.5, 32)])  # lines 0-3
sketch14.addConstraint([
    Sketcher.Constraint("Horizontal", 0),
    Sketcher.Constraint("Vertical", 1),
    Sketcher.Constraint("Horizontal", 2),
    Sketcher.Constraint("Vertical", 3),
    Sketcher.Constraint("PointOnObject", 0, 2, -1),
    Sketcher.Constraint("DistanceX", 0, 2, 0, 1, Q("18 mm")),
    Sketcher.Constraint("DistanceY", 1, 1, 1, 2, Q("32 mm")),
    Sketcher.Constraint("DistanceX", -1, 1, 0, 2, Q("39.5 mm")),
])
pocket13 = body.newObject("PartDesign::Pocket", "Pocket012")
pocket13.Profile = sketch14
pocket13.Length = 2
pocket13.Reversed = True

# Sketch on XZ plane
sketch15 = body.newObject("Sketcher::SketchObject", "Sketch014")
sketch15.AttachmentSupport = (doc.getObject("XZ_Plane"), [""])
sketch15.MapMode = "FlatFace"
sketch15.AttachmentOffset = App.Placement(Vector(0, 0, -39.5), App.Rotation())
add_polygon(sketch15, [(-8, 0), (-8, 32), (10, 32), (10, 0)])  # lines 0-3
sketch15.addConstraint([
    Sketcher.Constraint("Vertical", 0),
    Sketcher.Constraint("Horizontal", 1),
    Sketcher.Constraint("Vertical", 2),
    Sketcher.Constraint("Horizontal", 3),
    Sketcher.Constraint("PointOnObject", 2, 2, -1),
    Sketcher.Constraint("DistanceX", 1, 1, 1, 2, Q("18 mm")),
    Sketcher.Constraint("DistanceY", 0, 1, 0, 2, Q("32 mm")),
    Sketcher.Constraint("DistanceX", 0, 2, -1, 1, Q("8 mm")),
])
pocket14 = body.newObject("PartDesign::Pocket", "Pocket013")
pocket14.Profile = sketch15
pocket14.Length = 2
pocket14.Reversed = True

# Sketch on YZ plane
sketch16 = body.newObject("Sketcher::SketchObject", "Sketch015")
sketch16.AttachmentSupport = (doc.getObject("YZ_Plane"), [""])
sketch16.MapMode = "FlatFace"
sketch16.AttachmentOffset = App.Placement(Vector(0, 0, -8), App.Rotation())
add_polygon(sketch16, [(59.5, 32), (37.5, 32), (37.5, 0), (59.5, 0)])  # lines 0-3
sketch16.addConstraint([
    Sketcher.Constraint("Horizontal", 0),
    Sketcher.Constraint("Vertical", 1),
    Sketcher.Constraint("Horizontal", 2),
    Sketcher.Constraint("Vertical", 3),
    Sketcher.Constraint("PointOnObject", 1, 2, -1),
    Sketcher.Constraint("DistanceX", 0, 2, 0, 1, Q("22 mm")),
    Sketcher.Constraint("DistanceY", 1, 2, 1, 1, Q("32 mm")),
    Sketcher.Constraint("DistanceX", -1, 1, 0, 2, Q("37.5 mm")),
])
pocket15 = body.newObject("PartDesign::Pocket", "Pocket014")
pocket15.Profile = sketch16
pocket15.Length = 2

# Sketch on XZ plane
sketch17 = body.newObject("Sketcher::SketchObject", "Sketch016")
sketch17.AttachmentSupport = (doc.getObject("XZ_Plane"), [""])
sketch17.MapMode = "FlatFace"
sketch17.AttachmentOffset = App.Placement(Vector(0, 0, -59.5), App.Rotation())
add_polygon(sketch17, [(-30, 0), (-30, 32), (-10, 32), (-10, 0)])  # lines 0-3
sketch17.addConstraint([
    Sketcher.Constraint("Vertical", 0),
    Sketcher.Constraint("Horizontal", 1),
    Sketcher.Constraint("Vertical", 2),
    Sketcher.Constraint("Horizontal", 3),
    Sketcher.Constraint("PointOnObject", 2, 2, -1),
    Sketcher.Constraint("DistanceX", 1, 1, 1, 2, Q("20 mm")),
    Sketcher.Constraint("DistanceY", 0, 1, 0, 2, Q("32 mm")),
    Sketcher.Constraint("DistanceX", 0, 2, -1, 1, Q("30 mm")),
])
pocket16 = body.newObject("PartDesign::Pocket", "Pocket015")
pocket16.Profile = sketch17
pocket16.Length = 2
pocket16.Reversed = True
doc.recompute()

fillet = body.newObject("PartDesign::Fillet", "Fillet")
fillet.Base = (pocket16, edges_at(pocket16, [
    (-27, -34.5, 19),
    (-27, 54.5, 19),
    (-13, 54.5, 19),
    (-7, 34.5, 19),
    (7, 34.5, 19),
    (13, 54.5, 19),
    (27, 54.5, 19),
    (27, -34.5, 19),
    (13, -34.5, 19),
    (7, -54.5, 19),
    (-7, -54.5, 19),
    (-13, -34.5, 19),
]))
fillet.Radius = 5
doc.recompute()

fillet2 = body.newObject("PartDesign::Fillet", "Fillet001")
fillet2.Base = (fillet, edges_at(fillet, [
    (-30, -37.5, 16),
    (-10, -37.5, 16),
    (-10, -57.5, 16),
    (10, -57.5, 16),
    (10, -37.5, 16),
    (30, -37.5, 16),
    (30, 57.5, 16),
    (10, 57.5, 16),
    (10, 37.5, 16),
    (-10, 37.5, 16),
    (-10, 57.5, 16),
    (-30, 57.5, 16),
]))
fillet2.Radius = 5
doc.recompute()

fillet3 = body.newObject("PartDesign::Fillet", "Fillet002")
fillet3.Base = (fillet2, edges_at(fillet2, [
    (-35, -39.5, 33.5),
    (-12, -39.5, 33.5),
    (-12, -59.5, 33.5),
    (12, -59.5, 33.5),
    (12, -39.5, 33.5),
    (35, -39.5, 33.5),
    (8, 59.5, 33.5),
    (8, 39.5, 33.5),
    (-8, 39.5, 33.5),
    (-8, 59.5, 33.5),
    (-35, 59.5, 33.5),
    (35, 59.5, 33.5),
]))
fillet3.Radius = 5

# Sketch on XY plane
sketch18 = body.newObject("Sketcher::SketchObject", "Sketch017")
sketch18.AttachmentSupport = (doc.getObject("XY_Plane"), [""])
sketch18.MapMode = "FlatFace"
sketch18.AttachmentOffset = App.Placement(Vector(0, 0, 35), App.Rotation())
sketch18.addGeometry([
    Part.Circle(Vector(-32, 56.5, 0), Vector(0, 0, 1), 1.5),  # 0
    Part.Circle(Vector(32, 56.5, 0), Vector(0, 0, 1), 1.5),  # 1
    Part.Circle(Vector(32, -36.5, 0), Vector(0, 0, 1), 1.5),  # 2
    Part.Circle(Vector(-32, -36.5, 0), Vector(0, 0, 1), 1.5),  # 3
    Part.Circle(Vector(-10, -36.5, 0), Vector(0, 0, 1), 1.5),  # 4
    Part.Circle(Vector(10, -36.5, 0), Vector(0, 0, 1), 1.5),  # 5
], False)
sketch18.addConstraint([
    Sketcher.Constraint("Equal", 0, 1),
    Sketcher.Constraint("Equal", 1, 2),
    Sketcher.Constraint("Equal", 2, 3),
    Sketcher.Constraint("Equal", 3, 4),
    Sketcher.Constraint("Equal", 4, 5),
    Sketcher.Constraint("Symmetric", 0, 3, 1, 3, -2),
    Sketcher.Constraint("Symmetric", 2, 3, 3, 3, -2),
    Sketcher.Constraint("Symmetric", 4, 3, 5, 3, -2),
    Sketcher.Constraint("Horizontal", 3, 3, 4, 3),
    Sketcher.Constraint("Vertical", 1, 3, 2, 3),
    Sketcher.Constraint("Diameter", 0, Q("3 mm")),
    Sketcher.Constraint("DistanceX", 0, 3, -1, 1, Q("32 mm")),
    Sketcher.Constraint("DistanceX", 4, 3, -1, 1, Q("10 mm")),
    Sketcher.Constraint("DistanceY", 2, 3, 1, 3, Q("93 mm")),
    Sketcher.Constraint("DistanceY", -1, 1, 0, 3, Q("56.5 mm")),
])
pocket17 = body.newObject("PartDesign::Pocket", "Pocket016")
pocket17.Profile = sketch18
pocket17.Length = 10

# Sketch on XY plane
sketch19 = body.newObject("Sketcher::SketchObject", "Sketch018")
sketch19.AttachmentSupport = (doc.getObject("XY_Plane"), [""])
sketch19.MapMode = "FlatFace"
sketch19.AttachmentOffset = App.Placement(Vector(0, 0, 35), App.Rotation())
sketch19.addGeometry([
    Part.Circle(Vector(-10, 56.5, 0), Vector(0, 0, 1), 0.9),
    Part.Circle(Vector(10, 56.5, 0), Vector(0, 0, 1), 0.9),
    Part.Circle(Vector(10, -56.5, 0), Vector(0, 0, 1), 0.9),
    Part.Circle(Vector(-10, -56.5, 0), Vector(0, 0, 1), 0.9),
], False)
sketch19.addConstraint([
    Sketcher.Constraint("Equal", 0, 1),
    Sketcher.Constraint("Equal", 1, 2),
    Sketcher.Constraint("Equal", 2, 3),
    Sketcher.Constraint("Symmetric", 0, 3, 2, 3, -1, 1),
    Sketcher.Constraint("Symmetric", 1, 3, 3, 3, -1, 1),
    Sketcher.Constraint("Symmetric", 0, 3, 1, 3, -2),
    Sketcher.Constraint("Diameter", 0, Q("1.8 mm")),
    Sketcher.Constraint("DistanceX", 0, 3, -1, 1, Q("10 mm")),
    Sketcher.Constraint("DistanceY", 2, 3, 1, 3, Q("113 mm")),
])
pocket18 = body.newObject("PartDesign::Pocket", "Pocket017")
pocket18.Profile = sketch19
pocket18.Length = 10

# Sketch on YZ plane
sketch20 = body.newObject("Sketcher::SketchObject", "Sketch019")
sketch20.AttachmentSupport = (doc.getObject("YZ_Plane"), [""])
sketch20.MapMode = "FlatFace"
sketch20.AttachmentOffset = App.Placement(Vector(0, 0, -13), App.Rotation())
sketch20.addGeometry([
    Part.LineSegment(Vector(27, 35, 0), Vector(27, 3, 0)),
    Part.LineSegment(Vector(27, 3, 0), Vector(12, 3, 0)),
    Part.LineSegment(Vector(12, 3, 0), Vector(12, 35, 0)),
    Part.ArcOfCircle(Part.Circle(Vector(19.5, 35, 0), Vector(0, 0, 1), 7.5), math.radians(180), math.radians(360)),
], False)
sketch20.addConstraint([
    Sketcher.Constraint("Coincident", 0, 2, 1, 1),
    Sketcher.Constraint("Coincident", 1, 2, 2, 1),
    Sketcher.Constraint("Tangent", 2, 2, 3, 1),
    Sketcher.Constraint("Tangent", 3, 2, 0, 1),
    Sketcher.Constraint("Vertical", 0),
    Sketcher.Constraint("Horizontal", 1),
    Sketcher.Constraint("Vertical", 2),
    Sketcher.Constraint("Radius", 3, Q("7.5 mm")),
    Sketcher.Constraint("DistanceY", 0, 2, 0, 1, Q("32 mm")),
    Sketcher.Constraint("DistanceY", -1, 1, 3, 3, Q("35 mm")),
    Sketcher.Constraint("DistanceX", -1, 1, 0, 2, Q("27 mm")),
])
pad2 = body.newObject("PartDesign::Pad", "Pad001")
pad2.Profile = sketch20
pad2.Length = 6

# Sketch on YZ plane
sketch21 = body.newObject("Sketcher::SketchObject", "Sketch020")
sketch21.AttachmentSupport = (doc.getObject("YZ_Plane"), [""])
sketch21.MapMode = "FlatFace"
sketch21.AttachmentOffset = App.Placement(Vector(0, 0, 7), App.Rotation())
sketch21.addGeometry([
    Part.LineSegment(Vector(-12, 35, 0), Vector(-12, 3, 0)),
    Part.LineSegment(Vector(-12, 3, 0), Vector(-27, 3, 0)),
    Part.LineSegment(Vector(-27, 3, 0), Vector(-27, 35, 0)),
    Part.ArcOfCircle(Part.Circle(Vector(-19.5, 35, 0), Vector(0, 0, 1), 7.5), math.radians(180), math.radians(360)),
], False)
sketch21.addConstraint([
    Sketcher.Constraint("Coincident", 0, 2, 1, 1),
    Sketcher.Constraint("Coincident", 1, 2, 2, 1),
    Sketcher.Constraint("Tangent", 2, 2, 3, 1),
    Sketcher.Constraint("Tangent", 3, 2, 0, 1),
    Sketcher.Constraint("Vertical", 0),
    Sketcher.Constraint("Horizontal", 1),
    Sketcher.Constraint("Vertical", 2),
    Sketcher.Constraint("Radius", 3, Q("7.5 mm")),
    Sketcher.Constraint("DistanceY", 0, 2, 0, 1, Q("32 mm")),
    Sketcher.Constraint("DistanceY", -1, 1, 3, 3, Q("35 mm")),
    Sketcher.Constraint("DistanceX", 0, 2, -1, 1, Q("12 mm")),
])
pad3 = body.newObject("PartDesign::Pad", "Pad002")
pad3.Profile = sketch21
pad3.Length = 6

doc.recompute()
